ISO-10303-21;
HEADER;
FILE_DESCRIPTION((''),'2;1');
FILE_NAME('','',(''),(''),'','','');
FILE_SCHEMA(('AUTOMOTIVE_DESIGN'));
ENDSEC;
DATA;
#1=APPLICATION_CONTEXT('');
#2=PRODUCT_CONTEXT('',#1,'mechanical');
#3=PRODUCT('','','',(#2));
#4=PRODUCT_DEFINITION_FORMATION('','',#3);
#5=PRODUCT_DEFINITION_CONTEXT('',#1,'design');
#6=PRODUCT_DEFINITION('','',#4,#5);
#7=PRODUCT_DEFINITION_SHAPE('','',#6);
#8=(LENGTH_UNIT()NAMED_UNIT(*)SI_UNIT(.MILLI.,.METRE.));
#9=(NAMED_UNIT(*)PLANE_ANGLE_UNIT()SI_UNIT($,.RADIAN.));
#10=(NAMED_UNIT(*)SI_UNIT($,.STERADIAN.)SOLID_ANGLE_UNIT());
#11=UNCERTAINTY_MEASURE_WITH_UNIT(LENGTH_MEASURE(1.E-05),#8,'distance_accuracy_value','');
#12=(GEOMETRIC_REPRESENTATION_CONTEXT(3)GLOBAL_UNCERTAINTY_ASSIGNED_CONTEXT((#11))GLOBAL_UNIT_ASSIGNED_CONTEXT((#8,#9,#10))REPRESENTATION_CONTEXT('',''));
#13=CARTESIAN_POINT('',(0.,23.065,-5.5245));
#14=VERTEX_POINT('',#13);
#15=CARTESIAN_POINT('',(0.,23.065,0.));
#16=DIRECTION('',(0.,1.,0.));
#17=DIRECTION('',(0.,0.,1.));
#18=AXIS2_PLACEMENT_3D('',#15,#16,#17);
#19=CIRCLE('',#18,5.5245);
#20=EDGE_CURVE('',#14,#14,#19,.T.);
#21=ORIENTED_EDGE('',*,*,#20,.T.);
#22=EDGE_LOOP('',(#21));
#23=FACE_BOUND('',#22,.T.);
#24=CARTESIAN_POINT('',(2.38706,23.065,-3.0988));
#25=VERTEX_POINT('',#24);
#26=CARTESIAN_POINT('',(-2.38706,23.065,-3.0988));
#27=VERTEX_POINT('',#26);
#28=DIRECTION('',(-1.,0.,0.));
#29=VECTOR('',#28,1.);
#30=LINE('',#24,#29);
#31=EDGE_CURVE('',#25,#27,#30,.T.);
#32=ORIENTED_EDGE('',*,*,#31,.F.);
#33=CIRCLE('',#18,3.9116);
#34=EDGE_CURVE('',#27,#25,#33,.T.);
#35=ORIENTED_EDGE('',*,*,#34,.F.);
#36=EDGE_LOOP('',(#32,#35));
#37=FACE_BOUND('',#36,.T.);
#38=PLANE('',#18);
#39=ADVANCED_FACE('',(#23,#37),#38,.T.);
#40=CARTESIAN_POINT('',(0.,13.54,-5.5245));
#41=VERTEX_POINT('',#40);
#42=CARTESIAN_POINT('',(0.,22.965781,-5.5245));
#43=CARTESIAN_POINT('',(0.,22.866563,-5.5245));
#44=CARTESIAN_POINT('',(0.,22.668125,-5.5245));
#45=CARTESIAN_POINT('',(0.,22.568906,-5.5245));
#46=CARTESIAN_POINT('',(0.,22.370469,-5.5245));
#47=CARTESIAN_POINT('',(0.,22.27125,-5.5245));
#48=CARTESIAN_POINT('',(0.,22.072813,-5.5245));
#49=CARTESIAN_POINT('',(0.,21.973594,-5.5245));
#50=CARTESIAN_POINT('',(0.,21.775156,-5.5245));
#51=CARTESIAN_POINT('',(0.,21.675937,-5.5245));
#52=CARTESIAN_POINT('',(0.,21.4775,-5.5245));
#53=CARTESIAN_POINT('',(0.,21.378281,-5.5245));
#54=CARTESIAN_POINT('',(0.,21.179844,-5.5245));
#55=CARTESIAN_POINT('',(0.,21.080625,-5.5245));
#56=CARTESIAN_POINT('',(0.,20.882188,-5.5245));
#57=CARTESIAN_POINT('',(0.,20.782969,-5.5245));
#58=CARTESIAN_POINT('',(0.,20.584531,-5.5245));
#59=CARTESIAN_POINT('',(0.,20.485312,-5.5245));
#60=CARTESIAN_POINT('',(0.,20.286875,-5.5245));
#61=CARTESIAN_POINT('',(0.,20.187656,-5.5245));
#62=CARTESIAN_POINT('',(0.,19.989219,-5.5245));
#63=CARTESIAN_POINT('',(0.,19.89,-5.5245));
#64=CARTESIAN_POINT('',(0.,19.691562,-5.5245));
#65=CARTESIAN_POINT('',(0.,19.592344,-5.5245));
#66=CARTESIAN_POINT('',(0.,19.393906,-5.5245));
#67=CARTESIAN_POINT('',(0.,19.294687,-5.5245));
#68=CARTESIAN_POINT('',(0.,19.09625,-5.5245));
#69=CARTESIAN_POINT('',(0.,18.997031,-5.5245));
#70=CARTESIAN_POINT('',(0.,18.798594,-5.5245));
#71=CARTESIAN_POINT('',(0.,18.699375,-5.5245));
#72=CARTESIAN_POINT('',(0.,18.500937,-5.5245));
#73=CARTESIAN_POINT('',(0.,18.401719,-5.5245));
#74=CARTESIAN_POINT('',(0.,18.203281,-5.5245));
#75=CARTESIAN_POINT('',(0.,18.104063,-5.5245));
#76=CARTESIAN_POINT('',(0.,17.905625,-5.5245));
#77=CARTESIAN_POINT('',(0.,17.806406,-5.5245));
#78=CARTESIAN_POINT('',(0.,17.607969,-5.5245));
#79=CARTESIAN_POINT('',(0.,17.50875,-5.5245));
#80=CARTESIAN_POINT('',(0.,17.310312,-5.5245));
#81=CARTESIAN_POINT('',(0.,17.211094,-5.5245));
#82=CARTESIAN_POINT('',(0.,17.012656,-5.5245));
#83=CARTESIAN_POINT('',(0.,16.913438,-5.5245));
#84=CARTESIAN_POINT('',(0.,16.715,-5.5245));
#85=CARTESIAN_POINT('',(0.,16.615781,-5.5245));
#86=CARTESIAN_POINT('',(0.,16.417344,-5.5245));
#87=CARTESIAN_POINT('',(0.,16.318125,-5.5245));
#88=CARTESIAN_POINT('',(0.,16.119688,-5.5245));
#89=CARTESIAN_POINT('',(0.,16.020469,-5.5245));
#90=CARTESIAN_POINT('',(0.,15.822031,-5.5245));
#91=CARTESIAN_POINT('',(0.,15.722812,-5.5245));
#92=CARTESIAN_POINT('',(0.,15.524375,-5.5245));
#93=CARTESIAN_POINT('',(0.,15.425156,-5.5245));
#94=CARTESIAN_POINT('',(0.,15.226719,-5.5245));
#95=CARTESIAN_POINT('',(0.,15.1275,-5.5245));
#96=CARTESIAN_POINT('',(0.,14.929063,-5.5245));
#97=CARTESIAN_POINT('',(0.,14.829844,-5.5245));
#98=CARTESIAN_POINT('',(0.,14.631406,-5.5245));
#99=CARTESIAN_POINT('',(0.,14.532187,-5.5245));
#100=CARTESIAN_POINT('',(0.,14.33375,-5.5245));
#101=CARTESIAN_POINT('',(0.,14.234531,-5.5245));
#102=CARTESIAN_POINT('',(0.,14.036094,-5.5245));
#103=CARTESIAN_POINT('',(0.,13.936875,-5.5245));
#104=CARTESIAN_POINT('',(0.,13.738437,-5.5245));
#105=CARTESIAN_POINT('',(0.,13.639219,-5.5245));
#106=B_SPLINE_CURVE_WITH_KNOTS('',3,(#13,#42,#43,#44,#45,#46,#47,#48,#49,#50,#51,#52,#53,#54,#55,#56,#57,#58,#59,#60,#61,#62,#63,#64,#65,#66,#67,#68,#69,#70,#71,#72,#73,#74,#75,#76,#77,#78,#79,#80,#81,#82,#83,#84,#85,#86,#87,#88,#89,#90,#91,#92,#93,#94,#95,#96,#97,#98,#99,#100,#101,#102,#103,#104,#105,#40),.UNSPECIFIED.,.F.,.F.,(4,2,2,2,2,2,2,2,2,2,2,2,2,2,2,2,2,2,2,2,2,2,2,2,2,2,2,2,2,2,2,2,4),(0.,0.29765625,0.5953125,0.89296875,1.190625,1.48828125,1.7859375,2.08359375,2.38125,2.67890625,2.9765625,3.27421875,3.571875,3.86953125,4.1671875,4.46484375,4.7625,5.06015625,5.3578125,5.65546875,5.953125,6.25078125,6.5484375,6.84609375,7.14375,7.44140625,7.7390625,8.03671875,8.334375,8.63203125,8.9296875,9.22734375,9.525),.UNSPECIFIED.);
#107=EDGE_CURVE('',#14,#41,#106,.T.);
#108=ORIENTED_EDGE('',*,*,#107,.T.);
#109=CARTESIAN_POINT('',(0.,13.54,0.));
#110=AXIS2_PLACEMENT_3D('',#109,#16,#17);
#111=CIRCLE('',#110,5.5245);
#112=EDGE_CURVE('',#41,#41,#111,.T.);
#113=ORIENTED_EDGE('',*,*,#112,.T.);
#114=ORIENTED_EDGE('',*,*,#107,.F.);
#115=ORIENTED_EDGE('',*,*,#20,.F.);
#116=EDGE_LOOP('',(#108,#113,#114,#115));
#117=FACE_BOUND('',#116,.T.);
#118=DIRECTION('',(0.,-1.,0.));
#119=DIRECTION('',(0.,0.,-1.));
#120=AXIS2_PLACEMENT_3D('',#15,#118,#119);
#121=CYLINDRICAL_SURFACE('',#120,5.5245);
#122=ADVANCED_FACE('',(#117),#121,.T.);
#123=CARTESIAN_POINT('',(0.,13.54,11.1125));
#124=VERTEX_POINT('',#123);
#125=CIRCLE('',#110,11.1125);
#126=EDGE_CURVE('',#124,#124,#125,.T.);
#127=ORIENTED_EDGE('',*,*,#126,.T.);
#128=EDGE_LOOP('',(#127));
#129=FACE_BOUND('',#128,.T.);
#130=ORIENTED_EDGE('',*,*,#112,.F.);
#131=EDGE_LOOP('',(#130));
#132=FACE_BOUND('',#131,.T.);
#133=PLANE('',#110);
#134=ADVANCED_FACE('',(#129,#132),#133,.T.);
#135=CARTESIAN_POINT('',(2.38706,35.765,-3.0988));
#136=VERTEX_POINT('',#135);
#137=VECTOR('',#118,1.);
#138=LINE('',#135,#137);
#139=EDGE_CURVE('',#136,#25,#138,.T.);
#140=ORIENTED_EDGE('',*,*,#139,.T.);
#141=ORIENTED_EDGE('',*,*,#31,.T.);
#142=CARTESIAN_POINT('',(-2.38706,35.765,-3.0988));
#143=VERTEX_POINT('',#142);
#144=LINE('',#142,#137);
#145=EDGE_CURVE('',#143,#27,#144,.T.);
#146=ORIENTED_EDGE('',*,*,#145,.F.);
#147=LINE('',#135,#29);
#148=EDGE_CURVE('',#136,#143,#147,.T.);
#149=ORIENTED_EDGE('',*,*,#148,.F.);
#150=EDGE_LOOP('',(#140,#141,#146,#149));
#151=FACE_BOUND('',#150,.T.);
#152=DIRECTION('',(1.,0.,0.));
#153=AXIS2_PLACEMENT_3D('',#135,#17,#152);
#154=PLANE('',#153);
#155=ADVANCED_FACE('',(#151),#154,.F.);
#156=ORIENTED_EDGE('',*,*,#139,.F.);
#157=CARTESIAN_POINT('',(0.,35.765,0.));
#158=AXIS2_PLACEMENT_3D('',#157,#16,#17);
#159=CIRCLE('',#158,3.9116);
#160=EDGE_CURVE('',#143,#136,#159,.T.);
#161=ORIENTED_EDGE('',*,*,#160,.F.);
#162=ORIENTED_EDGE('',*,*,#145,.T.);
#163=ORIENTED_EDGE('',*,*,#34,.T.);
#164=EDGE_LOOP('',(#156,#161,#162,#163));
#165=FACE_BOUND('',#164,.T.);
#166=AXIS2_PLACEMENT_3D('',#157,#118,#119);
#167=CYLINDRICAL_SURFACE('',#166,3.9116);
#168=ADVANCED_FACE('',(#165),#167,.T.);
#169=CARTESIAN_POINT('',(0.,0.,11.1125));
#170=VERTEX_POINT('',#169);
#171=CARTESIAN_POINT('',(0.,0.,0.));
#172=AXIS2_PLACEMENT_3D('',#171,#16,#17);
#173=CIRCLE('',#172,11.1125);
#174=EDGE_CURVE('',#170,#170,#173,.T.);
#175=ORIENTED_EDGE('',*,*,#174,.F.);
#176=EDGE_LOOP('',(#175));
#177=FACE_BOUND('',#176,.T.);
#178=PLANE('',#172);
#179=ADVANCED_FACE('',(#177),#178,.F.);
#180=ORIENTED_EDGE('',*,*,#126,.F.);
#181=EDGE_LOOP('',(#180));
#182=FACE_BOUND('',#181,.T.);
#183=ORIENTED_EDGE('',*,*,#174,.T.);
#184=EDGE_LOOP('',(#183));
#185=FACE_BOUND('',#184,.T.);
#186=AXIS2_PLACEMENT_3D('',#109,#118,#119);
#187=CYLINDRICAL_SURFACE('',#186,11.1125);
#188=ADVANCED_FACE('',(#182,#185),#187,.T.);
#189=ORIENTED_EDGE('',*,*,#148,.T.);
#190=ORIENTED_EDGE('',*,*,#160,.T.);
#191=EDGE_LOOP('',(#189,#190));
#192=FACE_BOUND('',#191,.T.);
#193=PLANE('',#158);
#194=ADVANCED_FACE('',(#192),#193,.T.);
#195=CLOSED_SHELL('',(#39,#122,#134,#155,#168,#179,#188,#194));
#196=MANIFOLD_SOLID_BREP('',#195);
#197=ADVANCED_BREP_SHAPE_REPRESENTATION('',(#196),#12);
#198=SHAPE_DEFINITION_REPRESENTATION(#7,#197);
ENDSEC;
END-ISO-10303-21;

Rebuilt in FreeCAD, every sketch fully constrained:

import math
import FreeCAD as App
import Part
import Sketcher

V = App.Vector
Q = App.Units.Quantity

doc = App.newDocument("Part")
params = doc.addObject("Spreadsheet::Sheet", "Params")
for row, (alias, value) in enumerate([
    ("sketch1_diameter", "0.875 in"),
    ("pad1_length", "13.54 mm"),
    ("sketch2_diameter", "0.435 in"),
    ("pad2_length", "0.375 in"),
    ("sketch3_radius", "0.154 in"),
    ("pad3_length", "0.5 in"),
], start=1):
    params.set(f"A{row}", alias)
    params.set(f"B{row}", "=" + value)
    params.setAlias(f"B{row}", alias)

body = doc.addObject("PartDesign::Body", "Body")

sketch1 = doc.addObject("Sketcher::SketchObject", "Sketch")
body.addObject(sketch1)
sketch1.AttachmentSupport = (doc.XZ_Plane, [""])
sketch1.MapMode = "FlatFace"
sketch1.addGeometry(Part.Circle(V(0, 0, 0), V(0, 0, 1), 11), False)
sketch1.addConstraint([
    Sketcher.Constraint("Coincident", 0, 3, -1, 1),
    Sketcher.Constraint("Diameter", 0, Q("0.875 in")),
])
sketch1.setExpression("Constraints[1]", "Params.sketch1_diameter")
pad1 = doc.addObject("PartDesign::Pad", "Pad")
body.addObject(pad1)
pad1.Profile = sketch1
pad1.setExpression("Length", "Params.pad1_length")
pad1.Reversed = True

sketch2 = doc.addObject("Sketcher::SketchObject", "Sketch001")
body.addObject(sketch2)
sketch2.AttachmentSupport = (doc.XZ_Plane, [""])
sketch2.MapMode = "FlatFace"
sketch2.AttachmentOffset = App.Placement(V(0, 0, -13.54), App.Rotation())
sketch2.addGeometry(Part.Circle(V(0, 0, 0), V(0, 0, 1), 6), False)
sketch2.addConstraint([
    Sketcher.Constraint("Coincident", 0, 3, -1, 1),
    Sketcher.Constraint("Diameter", 0, Q("0.435 in")),
])
sketch2.setExpression("Constraints[1]", "Params.sketch2_diameter")
pad2 = doc.addObject("PartDesign::Pad", "Pad001")
body.addObject(pad2)
pad2.Profile = sketch2
pad2.setExpression("Length", "Params.pad2_length")
pad2.Reversed = True

sketch3 = doc.addObject("Sketcher::SketchObject", "Sketch002")
body.addObject(sketch3)
sketch3.AttachmentSupport = (doc.XZ_Plane, [""])
sketch3.MapMode = "FlatFace"
sketch3.AttachmentOffset = App.Placement(V(0, 0, -23.065), App.Rotation())
sketch3.addGeometry([
    Part.LineSegment(V(2.4, -3.1, 0), V(-2.4, -3.1, 0)),
    Part.ArcOfCircle(Part.Circle(V(0, 0, 0), V(0, 0, 1), 3.9), math.radians(-52), math.radians(232)),
], False)
sketch3.addConstraint([
    Sketcher.Constraint("Coincident", 0, 1, 1, 1),
    Sketcher.Constraint("Coincident", 1, 2, 0, 2),
    Sketcher.Constraint("Horizontal", 0),
    Sketcher.Constraint("Coincident", 1, 3, -1, 1),
    Sketcher.Constraint("Radius", 1, Q("0.154 in")),
    Sketcher.Constraint("DistanceY", 0, 1, -1, 1, Q("0.122 in")),
])
sketch3.setExpression("Constraints[4]", "Params.sketch3_radius")
pad3 = doc.addObject("PartDesign::Pad", "Pad002")
body.addObject(pad3)
pad3.Profile = sketch3
pad3.setExpression("Length", "Params.pad3_length")
pad3.Reversed = True

doc.recompute()
